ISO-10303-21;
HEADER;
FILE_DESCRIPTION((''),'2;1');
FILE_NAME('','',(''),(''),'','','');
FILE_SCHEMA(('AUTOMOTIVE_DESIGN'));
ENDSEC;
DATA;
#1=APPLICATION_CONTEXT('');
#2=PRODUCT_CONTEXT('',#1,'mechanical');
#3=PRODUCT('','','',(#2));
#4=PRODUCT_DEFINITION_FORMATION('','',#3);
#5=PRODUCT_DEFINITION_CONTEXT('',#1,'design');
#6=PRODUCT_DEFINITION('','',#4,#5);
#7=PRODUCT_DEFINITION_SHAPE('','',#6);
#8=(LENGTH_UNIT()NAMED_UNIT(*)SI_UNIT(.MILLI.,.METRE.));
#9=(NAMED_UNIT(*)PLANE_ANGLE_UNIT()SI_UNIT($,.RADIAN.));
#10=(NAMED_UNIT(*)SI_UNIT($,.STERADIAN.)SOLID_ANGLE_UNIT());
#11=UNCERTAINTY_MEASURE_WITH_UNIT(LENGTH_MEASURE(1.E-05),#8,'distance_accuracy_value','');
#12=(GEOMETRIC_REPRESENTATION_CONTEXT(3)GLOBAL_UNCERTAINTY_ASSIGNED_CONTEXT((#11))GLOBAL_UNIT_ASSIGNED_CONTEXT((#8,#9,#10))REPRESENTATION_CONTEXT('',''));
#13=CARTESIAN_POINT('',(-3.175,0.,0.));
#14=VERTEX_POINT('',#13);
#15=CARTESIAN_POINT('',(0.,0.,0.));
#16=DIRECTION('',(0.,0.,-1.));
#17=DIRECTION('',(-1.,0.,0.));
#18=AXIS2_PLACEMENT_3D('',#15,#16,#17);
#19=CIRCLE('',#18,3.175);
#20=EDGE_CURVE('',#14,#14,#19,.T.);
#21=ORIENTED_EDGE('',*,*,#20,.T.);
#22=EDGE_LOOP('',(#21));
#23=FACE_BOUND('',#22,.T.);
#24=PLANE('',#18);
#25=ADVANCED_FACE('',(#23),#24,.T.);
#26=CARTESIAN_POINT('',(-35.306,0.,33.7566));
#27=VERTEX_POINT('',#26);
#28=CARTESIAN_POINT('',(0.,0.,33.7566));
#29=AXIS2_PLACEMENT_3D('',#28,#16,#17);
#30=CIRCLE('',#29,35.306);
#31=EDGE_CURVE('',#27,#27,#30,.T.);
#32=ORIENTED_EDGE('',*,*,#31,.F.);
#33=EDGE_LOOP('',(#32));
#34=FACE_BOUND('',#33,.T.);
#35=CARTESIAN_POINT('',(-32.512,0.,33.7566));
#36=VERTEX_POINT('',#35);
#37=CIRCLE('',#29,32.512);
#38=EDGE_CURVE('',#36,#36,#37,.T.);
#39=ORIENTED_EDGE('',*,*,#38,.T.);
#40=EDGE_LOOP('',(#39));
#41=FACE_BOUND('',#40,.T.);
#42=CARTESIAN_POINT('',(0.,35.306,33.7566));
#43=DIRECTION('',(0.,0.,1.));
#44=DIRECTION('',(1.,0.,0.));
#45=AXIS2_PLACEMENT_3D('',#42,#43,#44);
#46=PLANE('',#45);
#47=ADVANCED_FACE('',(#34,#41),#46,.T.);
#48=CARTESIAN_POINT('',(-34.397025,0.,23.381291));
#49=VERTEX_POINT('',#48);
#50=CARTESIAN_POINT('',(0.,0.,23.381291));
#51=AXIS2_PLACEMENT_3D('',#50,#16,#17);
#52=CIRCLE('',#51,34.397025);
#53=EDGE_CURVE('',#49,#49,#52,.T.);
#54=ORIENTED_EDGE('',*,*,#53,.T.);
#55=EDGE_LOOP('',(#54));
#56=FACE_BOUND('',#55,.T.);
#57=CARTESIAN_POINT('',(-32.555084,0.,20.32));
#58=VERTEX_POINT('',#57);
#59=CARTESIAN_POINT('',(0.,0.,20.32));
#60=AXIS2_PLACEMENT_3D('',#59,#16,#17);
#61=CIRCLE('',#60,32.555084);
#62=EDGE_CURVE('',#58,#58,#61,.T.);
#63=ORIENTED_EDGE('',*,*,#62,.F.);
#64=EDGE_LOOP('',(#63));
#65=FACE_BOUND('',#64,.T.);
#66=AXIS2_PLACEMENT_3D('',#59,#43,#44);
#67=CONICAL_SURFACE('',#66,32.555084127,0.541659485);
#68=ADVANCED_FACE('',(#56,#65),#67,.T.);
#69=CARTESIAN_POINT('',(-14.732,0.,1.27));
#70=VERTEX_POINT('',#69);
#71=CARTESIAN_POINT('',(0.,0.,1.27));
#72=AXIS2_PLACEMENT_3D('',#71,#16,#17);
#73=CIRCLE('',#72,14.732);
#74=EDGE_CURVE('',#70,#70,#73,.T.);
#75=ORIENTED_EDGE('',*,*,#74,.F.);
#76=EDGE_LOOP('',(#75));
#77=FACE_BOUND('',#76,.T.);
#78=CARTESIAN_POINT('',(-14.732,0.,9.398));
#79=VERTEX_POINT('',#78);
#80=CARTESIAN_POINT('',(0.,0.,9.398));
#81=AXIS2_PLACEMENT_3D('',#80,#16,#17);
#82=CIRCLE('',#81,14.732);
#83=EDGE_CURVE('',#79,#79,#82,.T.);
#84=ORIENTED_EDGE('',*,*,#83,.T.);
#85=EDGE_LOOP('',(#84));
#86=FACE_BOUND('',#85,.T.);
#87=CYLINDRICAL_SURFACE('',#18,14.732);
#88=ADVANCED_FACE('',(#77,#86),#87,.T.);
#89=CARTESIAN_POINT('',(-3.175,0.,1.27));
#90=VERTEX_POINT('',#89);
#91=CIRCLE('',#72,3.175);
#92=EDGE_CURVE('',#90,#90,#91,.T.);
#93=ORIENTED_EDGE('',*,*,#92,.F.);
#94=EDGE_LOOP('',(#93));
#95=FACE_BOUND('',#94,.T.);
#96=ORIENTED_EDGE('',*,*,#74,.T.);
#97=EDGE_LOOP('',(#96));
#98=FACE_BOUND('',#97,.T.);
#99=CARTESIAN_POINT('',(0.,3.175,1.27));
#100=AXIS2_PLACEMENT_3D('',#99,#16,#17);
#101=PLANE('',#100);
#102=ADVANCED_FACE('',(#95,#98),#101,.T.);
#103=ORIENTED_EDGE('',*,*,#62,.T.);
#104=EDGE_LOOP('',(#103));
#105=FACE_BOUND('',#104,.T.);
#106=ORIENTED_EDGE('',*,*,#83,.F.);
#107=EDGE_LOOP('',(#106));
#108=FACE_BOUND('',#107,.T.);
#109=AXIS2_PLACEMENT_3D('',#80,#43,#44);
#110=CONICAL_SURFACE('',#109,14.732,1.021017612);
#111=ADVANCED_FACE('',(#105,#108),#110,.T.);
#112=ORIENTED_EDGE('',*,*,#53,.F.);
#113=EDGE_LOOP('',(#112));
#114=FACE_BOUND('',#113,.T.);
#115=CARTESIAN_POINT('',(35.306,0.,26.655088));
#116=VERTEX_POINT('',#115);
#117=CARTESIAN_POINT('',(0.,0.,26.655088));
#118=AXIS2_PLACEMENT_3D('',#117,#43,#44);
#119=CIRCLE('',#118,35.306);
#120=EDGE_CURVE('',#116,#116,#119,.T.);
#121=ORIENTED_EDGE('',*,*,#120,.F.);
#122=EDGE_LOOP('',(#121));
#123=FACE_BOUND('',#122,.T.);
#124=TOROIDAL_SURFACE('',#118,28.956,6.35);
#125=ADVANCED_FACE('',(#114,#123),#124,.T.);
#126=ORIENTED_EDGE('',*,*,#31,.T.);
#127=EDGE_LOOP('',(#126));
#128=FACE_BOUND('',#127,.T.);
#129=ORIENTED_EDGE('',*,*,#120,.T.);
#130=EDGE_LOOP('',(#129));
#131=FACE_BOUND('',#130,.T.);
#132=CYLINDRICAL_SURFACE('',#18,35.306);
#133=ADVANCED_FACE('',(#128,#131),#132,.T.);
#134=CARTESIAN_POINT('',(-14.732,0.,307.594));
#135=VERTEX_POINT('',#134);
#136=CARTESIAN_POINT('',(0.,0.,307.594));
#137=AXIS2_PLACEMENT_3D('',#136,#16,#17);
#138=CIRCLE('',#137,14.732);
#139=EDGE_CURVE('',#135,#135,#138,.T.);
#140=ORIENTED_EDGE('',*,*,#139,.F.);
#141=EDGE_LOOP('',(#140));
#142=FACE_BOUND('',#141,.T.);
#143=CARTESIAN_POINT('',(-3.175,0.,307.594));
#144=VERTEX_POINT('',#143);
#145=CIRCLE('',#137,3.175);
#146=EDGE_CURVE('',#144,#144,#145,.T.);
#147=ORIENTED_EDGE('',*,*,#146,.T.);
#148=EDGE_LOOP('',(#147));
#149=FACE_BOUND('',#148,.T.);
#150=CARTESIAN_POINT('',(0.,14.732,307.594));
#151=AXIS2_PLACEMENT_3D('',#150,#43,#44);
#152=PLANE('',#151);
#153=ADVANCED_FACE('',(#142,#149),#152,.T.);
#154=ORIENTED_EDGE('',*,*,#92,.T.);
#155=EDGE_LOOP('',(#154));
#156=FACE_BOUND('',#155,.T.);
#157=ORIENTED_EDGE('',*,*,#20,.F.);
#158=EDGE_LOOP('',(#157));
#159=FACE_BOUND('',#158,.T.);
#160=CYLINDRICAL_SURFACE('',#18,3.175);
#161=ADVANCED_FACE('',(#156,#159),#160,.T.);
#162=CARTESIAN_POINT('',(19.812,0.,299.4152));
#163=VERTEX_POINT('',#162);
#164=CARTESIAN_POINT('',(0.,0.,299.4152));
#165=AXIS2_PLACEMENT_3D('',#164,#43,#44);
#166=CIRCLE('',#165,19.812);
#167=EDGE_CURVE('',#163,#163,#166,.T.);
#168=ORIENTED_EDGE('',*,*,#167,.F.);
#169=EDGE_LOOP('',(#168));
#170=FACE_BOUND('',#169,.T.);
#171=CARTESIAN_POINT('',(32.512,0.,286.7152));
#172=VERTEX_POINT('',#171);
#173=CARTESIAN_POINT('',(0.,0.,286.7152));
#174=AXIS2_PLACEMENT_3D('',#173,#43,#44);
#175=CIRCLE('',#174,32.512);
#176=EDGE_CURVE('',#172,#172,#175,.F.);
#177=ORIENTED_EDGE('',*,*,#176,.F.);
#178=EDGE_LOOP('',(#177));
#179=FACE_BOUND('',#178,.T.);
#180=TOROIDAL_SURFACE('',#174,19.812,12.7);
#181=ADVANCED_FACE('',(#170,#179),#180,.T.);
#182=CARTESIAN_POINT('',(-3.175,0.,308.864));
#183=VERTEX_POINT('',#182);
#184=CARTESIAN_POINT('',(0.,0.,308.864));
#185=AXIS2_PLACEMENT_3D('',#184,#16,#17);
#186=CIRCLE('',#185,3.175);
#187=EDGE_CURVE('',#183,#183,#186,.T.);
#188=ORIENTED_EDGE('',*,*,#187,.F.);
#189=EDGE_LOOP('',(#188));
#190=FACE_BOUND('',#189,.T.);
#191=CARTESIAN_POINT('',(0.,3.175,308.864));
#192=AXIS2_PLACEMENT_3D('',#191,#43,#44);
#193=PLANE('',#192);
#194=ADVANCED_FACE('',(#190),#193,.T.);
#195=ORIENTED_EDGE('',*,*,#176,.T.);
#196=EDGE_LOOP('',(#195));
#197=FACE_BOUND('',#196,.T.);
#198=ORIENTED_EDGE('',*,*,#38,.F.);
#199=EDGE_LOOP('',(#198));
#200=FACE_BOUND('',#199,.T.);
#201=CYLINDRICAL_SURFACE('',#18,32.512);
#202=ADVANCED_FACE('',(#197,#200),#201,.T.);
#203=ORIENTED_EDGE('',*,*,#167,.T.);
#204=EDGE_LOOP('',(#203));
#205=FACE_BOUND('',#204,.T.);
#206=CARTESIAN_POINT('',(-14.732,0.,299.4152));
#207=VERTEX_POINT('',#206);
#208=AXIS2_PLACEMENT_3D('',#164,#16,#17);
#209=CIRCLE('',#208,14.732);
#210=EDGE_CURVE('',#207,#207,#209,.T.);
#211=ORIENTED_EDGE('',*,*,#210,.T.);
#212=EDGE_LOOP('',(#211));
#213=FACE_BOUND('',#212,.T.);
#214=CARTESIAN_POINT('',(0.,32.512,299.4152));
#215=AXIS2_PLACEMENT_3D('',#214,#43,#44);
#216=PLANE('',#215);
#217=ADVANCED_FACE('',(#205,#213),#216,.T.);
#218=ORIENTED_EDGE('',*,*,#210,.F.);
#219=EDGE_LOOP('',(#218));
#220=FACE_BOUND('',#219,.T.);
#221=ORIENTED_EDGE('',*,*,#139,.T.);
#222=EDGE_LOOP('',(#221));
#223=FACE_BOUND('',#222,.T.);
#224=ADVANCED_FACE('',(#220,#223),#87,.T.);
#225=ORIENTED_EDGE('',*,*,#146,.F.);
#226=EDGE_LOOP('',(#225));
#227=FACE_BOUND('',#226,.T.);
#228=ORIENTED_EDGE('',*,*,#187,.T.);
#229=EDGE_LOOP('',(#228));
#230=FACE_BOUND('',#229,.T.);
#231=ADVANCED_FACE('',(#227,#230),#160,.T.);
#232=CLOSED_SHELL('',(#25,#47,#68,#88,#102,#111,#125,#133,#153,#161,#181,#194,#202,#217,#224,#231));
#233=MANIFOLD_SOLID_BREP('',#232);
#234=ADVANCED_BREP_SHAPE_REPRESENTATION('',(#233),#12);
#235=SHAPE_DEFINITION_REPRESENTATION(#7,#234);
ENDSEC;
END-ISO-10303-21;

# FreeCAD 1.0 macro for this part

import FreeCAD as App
import Part
import Sketcher

V = App.Vector
Q = App.Units.Quantity


def edges_at(feature, points):
    """Names of the edges that pass closest to the given points."""
    edges = feature.Shape.Edges
    near = lambda p: min(range(len(edges)), key=lambda i: edges[i].distToShape(Part.Vertex(*p))[0])
    return sorted({f"Edge{near(p) + 1}" for p in points})


def add_polygon(sketch, points):
    """Adds a closed chain of lines whose ends are joined by coincident constraints."""
    first, n = sketch.GeometryCount, len(points)
    for a, b in zip(points, points[1:] + points[:1]):
        sketch.addGeometry(Part.LineSegment(App.Vector(*a, 0), App.Vector(*b, 0)), False)
    for i in range(n):
        sketch.addConstraint(Sketcher.Constraint("Coincident", first + i, 2, first + (i + 1) % n, 1))

doc = App.newDocument("Part")
params = doc.addObject("Spreadsheet::Sheet", "Params")
for row, (alias, value) in enumerate([
    ("sketch1_width", "0.7 in"),
    ("sketch1_width2", "0.11 in"),
    ("sketch1_height", "0.05 in"),
    ("sketch1_height2", "0.32 in"),
    ("sketch1_height3", "12.16 in"),
    ("revolution_angle", "360 deg"),
    ("fillet_radius", "0.5 in"),
    ("fillet2_radius", "0.25 in"),
], start=1):
    params.set(f"A{row}", alias)
    params.set(f"B{row}", "=" + value)
    params.setAlias(f"B{row}", alias)

body = doc.addObject("PartDesign::Body", "Body")

# Sketch on YZ plane
sketch1 = body.newObject("Sketcher::SketchObject", "Sketch")
sketch1.AttachmentSupport = (doc.getObject("YZ_Plane"), [""])
sketch1.MapMode = "FlatFace"
add_polygon(sketch1, [(0, 0), (3.2, 0), (3.2, 1.3), (14.7, 1.3), (14.7, 9.4), (32.6, 20.3), (35.3, 24.9), (35.3, 33.8), (32.5, 33.8), (32.5, 299.4), (14.7, 299.4), (14.7, 307.6), (3.2, 307.6), (3.2, 308.9), (0, 308.9)])  # lines 0-14
sketch1.addConstraint([
    Sketcher.Constraint("Horizontal", 0),
    Sketcher.Constraint("Vertical", 1),
    Sketcher.Constraint("Horizontal", 2),
    Sketcher.Constraint("Vertical", 3),
    Sketcher.Constraint("Vertical", 6),
    Sketcher.Constraint("Horizontal", 7),
    Sketcher.Constraint("Vertical", 8),
    Sketcher.Constraint("Horizontal", 9),
    Sketcher.Constraint("Vertical", 10),
    Sketcher.Constraint("Horizontal", 11),
    Sketcher.Constraint("Vertical", 12),
    Sketcher.Constraint("Horizontal", 13),
    Sketcher.Constraint("Vertical", 14),
    Sketcher.Constraint("Coincident", 14, 2, -1, 1),
    Sketcher.Constraint("Vertical", 3, 2, 9, 2),
    Sketcher.Constraint("Vertical", 1, 2, 11, 2),
    Sketcher.Constraint("Equal", 1, 12),
    Sketcher.Constraint("DistanceX", 9, 2, 9, 1, Q("0.7 in")),
    Sketcher.Constraint("DistanceX", 7, 2, 7, 1, Q("0.11 in")),
    Sketcher.Constraint("DistanceY", 1, 1, 1, 2, Q("0.05 in")),
    Sketcher.Constraint("DistanceY", 3, 1, 3, 2, Q("0.32 in")),
    Sketcher.Constraint("DistanceY", 14, 2, 14, 1, Q("12.16 in")),
    Sketcher.Constraint("DistanceY", -1, 1, 4, 2, Q("0.8 in")),
    Sketcher.Constraint("Angle", 4, Q("31.5 deg")),
    Sketcher.Constraint("DistanceX", 0, 1, 0, 2, Q("0.125 in")),
    Sketcher.Constraint("DistanceX", 2, 1, 2, 2, Q("0.455 in")),
    Sketcher.Constraint("DistanceY", 6, 1, 6, 2, Q("0.349 in")),
    Sketcher.Constraint("DistanceY", 8, 1, 8, 2, Q("10.459 in")),
    Sketcher.Constraint("DistanceY", 10, 1, 10, 2, Q("0.322 in")),
])
sketch1.setExpression("Constraints[32]", "Params.sketch1_width")
sketch1.setExpression("Constraints[33]", "Params.sketch1_width2")
sketch1.setExpression("Constraints[34]", "Params.sketch1_height")
sketch1.setExpression("Constraints[35]", "Params.sketch1_height2")
sketch1.setExpression("Constraints[36]", "Params.sketch1_height3")
revolution = body.newObject("PartDesign::Revolution", "Revolution")
revolution.Profile = sketch1
revolution.ReferenceAxis = (sketch1, ["V_Axis"])
revolution.setExpression("Angle", "Params.revolution_angle")
doc.recompute()

fillet = body.newObject("PartDesign::Fillet", "Fillet")
fillet.Base = (revolution, edges_at(revolution, [(0, -32.512, 299.415)]))
fillet.setExpression("Radius", "Params.fillet_radius")
doc.recompute()

fillet2 = body.newObject("PartDesign::Fillet", "Fillet001")
fillet2.Base = (fillet, edges_at(fillet, [(0, -35.306, 24.892)]))
fillet2.setExpression("Radius", "Params.fillet2_radius")

doc.recompute()
